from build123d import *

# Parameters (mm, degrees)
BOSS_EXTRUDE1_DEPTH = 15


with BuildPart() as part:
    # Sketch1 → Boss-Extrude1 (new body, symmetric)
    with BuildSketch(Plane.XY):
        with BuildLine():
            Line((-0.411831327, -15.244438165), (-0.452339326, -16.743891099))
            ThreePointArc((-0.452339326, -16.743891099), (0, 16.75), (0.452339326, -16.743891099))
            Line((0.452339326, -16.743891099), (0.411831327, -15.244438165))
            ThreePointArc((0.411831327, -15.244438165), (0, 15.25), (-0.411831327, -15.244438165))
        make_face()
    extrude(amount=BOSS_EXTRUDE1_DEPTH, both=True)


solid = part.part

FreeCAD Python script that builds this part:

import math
import FreeCAD as App
import Part
import Sketcher

V = App.Vector
Q = App.Units.Quantity

doc = App.newDocument("Part")
body = doc.addObject("PartDesign::Body", "Body")

sketch1 = body.newObject("Sketcher::SketchObject", "Sketch")
sketch1.AttachmentSupport = (doc.getObject("XY_Plane"), [""])
sketch1.MapMode = "FlatFace"
sketch1.addGeometry([
    Part.LineSegment(V(-0.452339, -16.743891, 0), V(-0.411831, -15.244438, 0)),
    Part.ArcOfCircle(Part.Circle(V(0, 0, 0), V(0, 0, 1), 15.25), math.radians(-88.45252), math.radians(268.45252)),
    Part.LineSegment(V(0.411831, -15.244438, 0), V(0.452339, -16.743891, 0)),
    Part.ArcOfCircle(Part.Circle(V(0, 0, 0), V(0, 0, 1), 16.75), math.radians(-88.45252), math.radians(268.45252)),
], False)
sketch1.addConstraint([
    Sketcher.Constraint("Coincident", 0, 2, 1, 2),
    Sketcher.Constraint("Coincident", 1, 1, 2, 1),
    Sketcher.Constraint("Coincident", 2, 2, 3, 1),
    Sketcher.Constraint("Coincident", 3, 2, 0, 1),
    Sketcher.Constraint("Coincident", 1, 3, -1, 1),
    Sketcher.Constraint("Coincident", 3, 3, -1, 1),
    Sketcher.Constraint("Horizontal", 0, 2, 1, 1),
    Sketcher.Constraint("Horizontal", 2, 2, 3, 2),
    Sketcher.Constraint("Radius", 1, Q("15.25 mm")),
    Sketcher.Constraint("Radius", 3, Q("16.75 mm")),
    Sketcher.Constraint("DistanceX", 0, 2, -1, 1, Q("0.411831 mm")),
    Sketcher.Constraint("DistanceX", -1, 1, 2, 2, Q("0.452339 mm")),
])
pad1 = body.newObject("PartDesign::Pad", "Pad")
pad1.Profile = sketch1
pad1.Length = 30
pad1.Midplane = True

doc.recompute()
